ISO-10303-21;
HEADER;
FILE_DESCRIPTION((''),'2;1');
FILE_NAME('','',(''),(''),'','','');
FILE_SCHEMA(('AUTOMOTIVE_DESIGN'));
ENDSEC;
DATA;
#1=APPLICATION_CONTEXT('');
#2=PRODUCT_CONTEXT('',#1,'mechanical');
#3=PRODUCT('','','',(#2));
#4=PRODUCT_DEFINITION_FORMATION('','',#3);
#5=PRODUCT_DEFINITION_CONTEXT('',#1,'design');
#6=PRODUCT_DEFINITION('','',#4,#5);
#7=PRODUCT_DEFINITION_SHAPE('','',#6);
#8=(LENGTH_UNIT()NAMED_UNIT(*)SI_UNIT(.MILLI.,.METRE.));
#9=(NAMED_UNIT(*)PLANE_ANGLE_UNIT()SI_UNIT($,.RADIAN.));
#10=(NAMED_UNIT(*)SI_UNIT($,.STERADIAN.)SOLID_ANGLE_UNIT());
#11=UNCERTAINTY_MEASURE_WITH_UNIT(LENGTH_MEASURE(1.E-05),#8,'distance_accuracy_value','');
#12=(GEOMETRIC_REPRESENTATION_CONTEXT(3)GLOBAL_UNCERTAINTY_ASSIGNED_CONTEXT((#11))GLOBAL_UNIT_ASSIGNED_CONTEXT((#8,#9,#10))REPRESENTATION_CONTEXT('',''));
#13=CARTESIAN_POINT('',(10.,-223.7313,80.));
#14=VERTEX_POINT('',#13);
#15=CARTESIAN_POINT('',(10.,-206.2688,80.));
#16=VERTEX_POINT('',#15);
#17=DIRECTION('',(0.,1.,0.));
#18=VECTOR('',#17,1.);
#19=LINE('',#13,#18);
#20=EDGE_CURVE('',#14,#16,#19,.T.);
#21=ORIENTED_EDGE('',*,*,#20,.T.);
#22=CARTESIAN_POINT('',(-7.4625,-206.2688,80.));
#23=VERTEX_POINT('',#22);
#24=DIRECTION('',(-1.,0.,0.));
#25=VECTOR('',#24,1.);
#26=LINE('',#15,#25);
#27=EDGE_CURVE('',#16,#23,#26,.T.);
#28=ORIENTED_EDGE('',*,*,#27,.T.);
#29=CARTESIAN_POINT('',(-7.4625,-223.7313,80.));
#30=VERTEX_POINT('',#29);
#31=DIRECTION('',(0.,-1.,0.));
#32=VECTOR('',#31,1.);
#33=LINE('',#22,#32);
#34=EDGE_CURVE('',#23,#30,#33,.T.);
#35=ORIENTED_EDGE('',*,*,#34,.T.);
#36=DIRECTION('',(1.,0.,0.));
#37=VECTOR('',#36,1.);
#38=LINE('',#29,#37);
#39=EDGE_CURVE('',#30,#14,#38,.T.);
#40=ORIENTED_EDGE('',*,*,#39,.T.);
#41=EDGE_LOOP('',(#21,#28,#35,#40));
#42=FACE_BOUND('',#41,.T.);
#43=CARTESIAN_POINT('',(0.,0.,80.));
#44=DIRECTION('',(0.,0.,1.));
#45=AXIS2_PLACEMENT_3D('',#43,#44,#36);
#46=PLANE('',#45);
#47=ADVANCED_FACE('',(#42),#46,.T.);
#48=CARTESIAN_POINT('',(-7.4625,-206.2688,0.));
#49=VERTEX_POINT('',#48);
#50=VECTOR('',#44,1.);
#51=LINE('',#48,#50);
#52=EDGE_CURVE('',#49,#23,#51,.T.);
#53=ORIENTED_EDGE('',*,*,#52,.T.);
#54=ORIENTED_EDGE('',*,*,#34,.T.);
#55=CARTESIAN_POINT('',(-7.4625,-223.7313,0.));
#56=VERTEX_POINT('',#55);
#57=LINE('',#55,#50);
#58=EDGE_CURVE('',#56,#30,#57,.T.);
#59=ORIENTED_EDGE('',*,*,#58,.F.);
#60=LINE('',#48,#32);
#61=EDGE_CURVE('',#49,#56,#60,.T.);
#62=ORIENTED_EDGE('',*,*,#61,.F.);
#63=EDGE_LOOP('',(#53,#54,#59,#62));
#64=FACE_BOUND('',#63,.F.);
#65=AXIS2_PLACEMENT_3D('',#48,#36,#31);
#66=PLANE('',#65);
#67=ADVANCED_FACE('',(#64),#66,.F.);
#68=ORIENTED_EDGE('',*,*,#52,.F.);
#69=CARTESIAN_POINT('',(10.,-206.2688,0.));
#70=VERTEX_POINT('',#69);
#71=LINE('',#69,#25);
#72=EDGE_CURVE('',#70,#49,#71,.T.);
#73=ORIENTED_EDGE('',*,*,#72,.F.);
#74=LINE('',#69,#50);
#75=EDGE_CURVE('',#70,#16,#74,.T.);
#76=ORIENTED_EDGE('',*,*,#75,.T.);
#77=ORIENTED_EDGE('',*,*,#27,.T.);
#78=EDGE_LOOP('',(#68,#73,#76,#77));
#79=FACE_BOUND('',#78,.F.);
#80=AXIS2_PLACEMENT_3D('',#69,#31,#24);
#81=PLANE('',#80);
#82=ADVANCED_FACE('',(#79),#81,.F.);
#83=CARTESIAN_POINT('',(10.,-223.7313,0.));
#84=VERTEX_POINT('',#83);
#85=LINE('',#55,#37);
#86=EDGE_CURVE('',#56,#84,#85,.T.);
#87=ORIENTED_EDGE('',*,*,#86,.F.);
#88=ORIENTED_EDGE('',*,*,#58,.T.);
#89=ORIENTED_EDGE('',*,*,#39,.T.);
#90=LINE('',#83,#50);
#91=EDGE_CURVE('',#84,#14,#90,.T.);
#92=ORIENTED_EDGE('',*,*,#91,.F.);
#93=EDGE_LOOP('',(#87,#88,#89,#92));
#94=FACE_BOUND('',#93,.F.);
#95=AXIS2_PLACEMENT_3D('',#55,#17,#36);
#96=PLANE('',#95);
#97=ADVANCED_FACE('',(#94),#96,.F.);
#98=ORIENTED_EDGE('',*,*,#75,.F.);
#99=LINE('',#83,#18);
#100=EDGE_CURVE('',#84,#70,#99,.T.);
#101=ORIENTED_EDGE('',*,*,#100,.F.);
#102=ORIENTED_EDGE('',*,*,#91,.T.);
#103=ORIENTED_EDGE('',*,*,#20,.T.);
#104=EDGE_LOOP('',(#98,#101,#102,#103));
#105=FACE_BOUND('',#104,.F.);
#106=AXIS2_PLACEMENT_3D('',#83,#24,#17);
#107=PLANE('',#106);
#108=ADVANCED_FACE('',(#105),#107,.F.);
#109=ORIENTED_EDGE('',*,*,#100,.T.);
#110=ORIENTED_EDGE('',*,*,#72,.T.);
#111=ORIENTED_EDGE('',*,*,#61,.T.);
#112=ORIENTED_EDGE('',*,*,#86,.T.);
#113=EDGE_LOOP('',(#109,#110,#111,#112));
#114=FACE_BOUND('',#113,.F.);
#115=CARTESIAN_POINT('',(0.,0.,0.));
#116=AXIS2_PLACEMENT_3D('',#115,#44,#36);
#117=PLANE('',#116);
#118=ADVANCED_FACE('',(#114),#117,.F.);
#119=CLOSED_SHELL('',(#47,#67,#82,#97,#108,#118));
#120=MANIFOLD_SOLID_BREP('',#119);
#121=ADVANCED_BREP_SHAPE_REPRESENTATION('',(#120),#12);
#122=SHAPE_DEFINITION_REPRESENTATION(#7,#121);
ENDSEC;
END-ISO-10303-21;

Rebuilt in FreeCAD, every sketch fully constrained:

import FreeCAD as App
import Part
import Sketcher

V = App.Vector
Q = App.Units.Quantity

doc = App.newDocument("Part")
body = doc.addObject("PartDesign::Body", "Body")

sketch1 = body.newObject("Sketcher::SketchObject", "Sketch")
sketch1.AttachmentSupport = (doc.getObject("XY_Plane"), [""])
sketch1.MapMode = "FlatFace"
sketch1.addGeometry(Part.LineSegment(V(10, -224, 0), V(10, -206, 0)), False)
sketch1.addGeometry(Part.LineSegment(V(10, -206, 0), V(-7, -206, 0)), False)
sketch1.addGeometry(Part.LineSegment(V(-7, -206, 0), V(-7, -224, 0)), False)
sketch1.addGeometry(Part.LineSegment(V(-7, -224, 0), V(10, -224, 0)), False)
sketch1.addConstraint(Sketcher.Constraint("Coincident", 0, 2, 1, 1))
sketch1.addConstraint(Sketcher.Constraint("Coincident", 1, 2, 2, 1))
sketch1.addConstraint(Sketcher.Constraint("Coincident", 2, 2, 3, 1))
sketch1.addConstraint(Sketcher.Constraint("Coincident", 3, 2, 0, 1))
sketch1.addConstraint(Sketcher.Constraint("Vertical", 0))
sketch1.addConstraint(Sketcher.Constraint("Horizontal", 1))
sketch1.addConstraint(Sketcher.Constraint("Vertical", 2))
sketch1.addConstraint(Sketcher.Constraint("Horizontal", 3))
sketch1.addConstraint(Sketcher.Constraint("Equal", 3, 0))
sketch1.addConstraint(Sketcher.Constraint("DistanceX", 1, 2, 1, 1, Q("0.6875 in")))
sketch1.addConstraint(Sketcher.Constraint("DistanceX", -1, 1, 0, 2, Q("0.3937 in")))
sketch1.addConstraint(Sketcher.Constraint("DistanceY", 0, 2, -1, 1, 206.2688))
pad1 = body.newObject("PartDesign::Pad", "Pad")
pad1.Profile = sketch1
pad1.Length = Q("3.1496063 in")

doc.recompute()
